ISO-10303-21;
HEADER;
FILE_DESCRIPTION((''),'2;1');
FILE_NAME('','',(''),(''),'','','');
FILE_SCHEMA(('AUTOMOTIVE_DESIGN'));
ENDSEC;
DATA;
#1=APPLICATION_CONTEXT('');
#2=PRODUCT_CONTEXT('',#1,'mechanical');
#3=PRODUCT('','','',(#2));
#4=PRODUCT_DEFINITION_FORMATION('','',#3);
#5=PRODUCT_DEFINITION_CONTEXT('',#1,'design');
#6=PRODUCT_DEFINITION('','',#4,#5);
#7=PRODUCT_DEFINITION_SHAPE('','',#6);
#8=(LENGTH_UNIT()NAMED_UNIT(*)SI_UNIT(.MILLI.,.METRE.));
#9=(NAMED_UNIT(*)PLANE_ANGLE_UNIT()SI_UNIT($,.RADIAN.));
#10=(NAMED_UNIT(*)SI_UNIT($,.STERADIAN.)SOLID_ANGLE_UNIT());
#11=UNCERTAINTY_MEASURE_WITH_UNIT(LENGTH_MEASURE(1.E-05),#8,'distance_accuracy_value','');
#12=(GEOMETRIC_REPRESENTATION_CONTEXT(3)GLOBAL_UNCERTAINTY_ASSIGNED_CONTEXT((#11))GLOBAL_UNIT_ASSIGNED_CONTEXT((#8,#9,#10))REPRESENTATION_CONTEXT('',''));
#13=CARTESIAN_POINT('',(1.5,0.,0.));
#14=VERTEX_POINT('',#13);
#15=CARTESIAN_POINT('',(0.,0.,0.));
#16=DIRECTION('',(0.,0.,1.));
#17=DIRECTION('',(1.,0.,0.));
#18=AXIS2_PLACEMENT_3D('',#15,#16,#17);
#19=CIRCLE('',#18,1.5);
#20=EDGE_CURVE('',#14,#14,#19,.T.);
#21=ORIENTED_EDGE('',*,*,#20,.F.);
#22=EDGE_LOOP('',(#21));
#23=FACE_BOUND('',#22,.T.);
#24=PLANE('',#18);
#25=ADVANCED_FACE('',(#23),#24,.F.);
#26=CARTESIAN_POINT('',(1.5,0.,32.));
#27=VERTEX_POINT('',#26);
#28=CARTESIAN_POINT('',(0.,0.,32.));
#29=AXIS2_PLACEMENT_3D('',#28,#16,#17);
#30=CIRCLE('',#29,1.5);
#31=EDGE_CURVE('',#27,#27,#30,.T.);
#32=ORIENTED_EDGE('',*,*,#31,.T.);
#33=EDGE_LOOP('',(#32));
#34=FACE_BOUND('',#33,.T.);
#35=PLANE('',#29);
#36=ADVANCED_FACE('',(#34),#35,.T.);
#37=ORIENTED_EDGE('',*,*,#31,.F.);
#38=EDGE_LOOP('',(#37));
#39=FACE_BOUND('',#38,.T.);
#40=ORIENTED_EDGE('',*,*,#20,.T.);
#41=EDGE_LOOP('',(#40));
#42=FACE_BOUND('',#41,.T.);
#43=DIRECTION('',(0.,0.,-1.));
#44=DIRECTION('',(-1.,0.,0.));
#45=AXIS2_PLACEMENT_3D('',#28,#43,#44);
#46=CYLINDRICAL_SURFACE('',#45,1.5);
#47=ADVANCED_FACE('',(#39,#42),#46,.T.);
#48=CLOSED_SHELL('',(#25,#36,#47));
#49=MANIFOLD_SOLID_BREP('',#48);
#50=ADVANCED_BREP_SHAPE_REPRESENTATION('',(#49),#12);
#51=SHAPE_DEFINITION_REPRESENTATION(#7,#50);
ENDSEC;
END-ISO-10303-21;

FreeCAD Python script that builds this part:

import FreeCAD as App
import Part
import Sketcher
Q = App.Units.Quantity

doc = App.newDocument("Part")
params = doc.addObject("Spreadsheet::Sheet", "Params")
for row, (alias, value) in enumerate([
    ("sketch1_diameter", "3 mm"),
    ("pad1_length", "32 mm"),
], start=1):
    params.set(f"A{row}", alias)
    params.set(f"B{row}", "=" + value)
    params.setAlias(f"B{row}", alias)

body = doc.addObject("PartDesign::Body", "Body")

sketch1 = doc.addObject("Sketcher::SketchObject", "Sketch")
body.addObject(sketch1)
sketch1.AttachmentSupport = (doc.XY_Plane, [""])
sketch1.MapMode = "FlatFace"
sketch1.addGeometry(Part.Circle(App.Vector(0, 0, 0), App.Vector(0, 0, 1), 1.5), False)
sketch1.addConstraint([
    Sketcher.Constraint("Coincident", 0, 3, -1, 1),
    Sketcher.Constraint("Diameter", 0, Q("3 mm")),
])
sketch1.setExpression("Constraints[1]", "Params.sketch1_diameter")
pad1 = doc.addObject("PartDesign::Pad", "Pad")
body.addObject(pad1)
pad1.Profile = sketch1
pad1.setExpression("Length", "Params.pad1_length")

doc.recompute()
